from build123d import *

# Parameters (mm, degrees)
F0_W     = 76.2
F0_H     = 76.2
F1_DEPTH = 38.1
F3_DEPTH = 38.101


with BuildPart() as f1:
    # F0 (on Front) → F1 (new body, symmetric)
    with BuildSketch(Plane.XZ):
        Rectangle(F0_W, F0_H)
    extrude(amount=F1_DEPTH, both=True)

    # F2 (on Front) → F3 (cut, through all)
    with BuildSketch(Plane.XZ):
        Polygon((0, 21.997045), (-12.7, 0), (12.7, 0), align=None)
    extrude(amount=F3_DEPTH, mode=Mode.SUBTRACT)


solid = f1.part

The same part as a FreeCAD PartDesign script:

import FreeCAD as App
import Part
import Sketcher
from FreeCAD import Vector
Q = App.Units.Quantity

doc = App.newDocument("Part")
body = doc.addObject("PartDesign::Body", "Body")

# Sketch on XZ plane
sketch1 = body.newObject("Sketcher::SketchObject", "Sketch")
sketch1.AttachmentSupport = (doc.getObject("XZ_Plane"), [""])
sketch1.MapMode = "FlatFace"
sketch1.addGeometry(Part.LineSegment(Vector(-38.1, 38.1, 0), Vector(-38.1, -38.1, 0)), False)
sketch1.addGeometry(Part.LineSegment(Vector(-38.1, -38.1, 0), Vector(38.1, -38.1, 0)), False)
sketch1.addGeometry(Part.LineSegment(Vector(38.1, -38.1, 0), Vector(38.1, 38.1, 0)), False)
sketch1.addGeometry(Part.LineSegment(Vector(38.1, 38.1, 0), Vector(-38.1, 38.1, 0)), False)
sketch1.addConstraint(Sketcher.Constraint("Coincident", 0, 2, 1, 1))
sketch1.addConstraint(Sketcher.Constraint("Coincident", 1, 2, 2, 1))
sketch1.addConstraint(Sketcher.Constraint("Coincident", 2, 2, 3, 1))
sketch1.addConstraint(Sketcher.Constraint("Coincident", 3, 2, 0, 1))
sketch1.addConstraint(Sketcher.Constraint("Vertical", 0))
sketch1.addConstraint(Sketcher.Constraint("Horizontal", 1))
sketch1.addConstraint(Sketcher.Constraint("Vertical", 2))
sketch1.addConstraint(Sketcher.Constraint("Horizontal", 3))
sketch1.addConstraint(Sketcher.Constraint("Symmetric", 0, 2, 2, 2, -1, 1))
sketch1.addConstraint(Sketcher.Constraint("Equal", 3, 0))
sketch1.addConstraint(Sketcher.Constraint("DistanceX", 1, 1, 1, 2, Q("3 in")))
pad1 = body.newObject("PartDesign::Pad", "Pad")
pad1.Profile = sketch1
pad1.Length = Q("3 in")
pad1.Midplane = True

# Sketch on XZ plane
sketch2 = body.newObject("Sketcher::SketchObject", "Sketch001")
sketch2.AttachmentSupport = (doc.getObject("XZ_Plane"), [""])
sketch2.MapMode = "FlatFace"
sketch2.addGeometry(Part.LineSegment(Vector(0, 21.997045, 0), Vector(-12.7, 0, 0)), False)
sketch2.addGeometry(Part.LineSegment(Vector(-12.7, 0, 0), Vector(12.7, 0, 0)), False)
sketch2.addGeometry(Part.LineSegment(Vector(12.7, 0, 0), Vector(0, 21.997045, 0)), False)
sketch2.addConstraint(Sketcher.Constraint("Coincident", 0, 2, 1, 1))
sketch2.addConstraint(Sketcher.Constraint("Coincident", 1, 2, 2, 1))
sketch2.addConstraint(Sketcher.Constraint("Coincident", 2, 2, 0, 1))
sketch2.addConstraint(Sketcher.Constraint("Horizontal", 1))
sketch2.addConstraint(Sketcher.Constraint("Symmetric", 0, 2, 1, 2, -1, 1))
sketch2.addConstraint(Sketcher.Constraint("PointOnObject", 2, 2, -2))
sketch2.addConstraint(Sketcher.Constraint("DistanceX", 1, 1, 1, 2, Q("1 in")))
sketch2.addConstraint(Sketcher.Constraint("Distance", 0, Q("1 in")))
pocket1 = body.newObject("PartDesign::Pocket", "Pocket")
pocket1.Profile = sketch2
pocket1.Type = "ThroughAll"
pocket1.Reversed = True

doc.recompute()
